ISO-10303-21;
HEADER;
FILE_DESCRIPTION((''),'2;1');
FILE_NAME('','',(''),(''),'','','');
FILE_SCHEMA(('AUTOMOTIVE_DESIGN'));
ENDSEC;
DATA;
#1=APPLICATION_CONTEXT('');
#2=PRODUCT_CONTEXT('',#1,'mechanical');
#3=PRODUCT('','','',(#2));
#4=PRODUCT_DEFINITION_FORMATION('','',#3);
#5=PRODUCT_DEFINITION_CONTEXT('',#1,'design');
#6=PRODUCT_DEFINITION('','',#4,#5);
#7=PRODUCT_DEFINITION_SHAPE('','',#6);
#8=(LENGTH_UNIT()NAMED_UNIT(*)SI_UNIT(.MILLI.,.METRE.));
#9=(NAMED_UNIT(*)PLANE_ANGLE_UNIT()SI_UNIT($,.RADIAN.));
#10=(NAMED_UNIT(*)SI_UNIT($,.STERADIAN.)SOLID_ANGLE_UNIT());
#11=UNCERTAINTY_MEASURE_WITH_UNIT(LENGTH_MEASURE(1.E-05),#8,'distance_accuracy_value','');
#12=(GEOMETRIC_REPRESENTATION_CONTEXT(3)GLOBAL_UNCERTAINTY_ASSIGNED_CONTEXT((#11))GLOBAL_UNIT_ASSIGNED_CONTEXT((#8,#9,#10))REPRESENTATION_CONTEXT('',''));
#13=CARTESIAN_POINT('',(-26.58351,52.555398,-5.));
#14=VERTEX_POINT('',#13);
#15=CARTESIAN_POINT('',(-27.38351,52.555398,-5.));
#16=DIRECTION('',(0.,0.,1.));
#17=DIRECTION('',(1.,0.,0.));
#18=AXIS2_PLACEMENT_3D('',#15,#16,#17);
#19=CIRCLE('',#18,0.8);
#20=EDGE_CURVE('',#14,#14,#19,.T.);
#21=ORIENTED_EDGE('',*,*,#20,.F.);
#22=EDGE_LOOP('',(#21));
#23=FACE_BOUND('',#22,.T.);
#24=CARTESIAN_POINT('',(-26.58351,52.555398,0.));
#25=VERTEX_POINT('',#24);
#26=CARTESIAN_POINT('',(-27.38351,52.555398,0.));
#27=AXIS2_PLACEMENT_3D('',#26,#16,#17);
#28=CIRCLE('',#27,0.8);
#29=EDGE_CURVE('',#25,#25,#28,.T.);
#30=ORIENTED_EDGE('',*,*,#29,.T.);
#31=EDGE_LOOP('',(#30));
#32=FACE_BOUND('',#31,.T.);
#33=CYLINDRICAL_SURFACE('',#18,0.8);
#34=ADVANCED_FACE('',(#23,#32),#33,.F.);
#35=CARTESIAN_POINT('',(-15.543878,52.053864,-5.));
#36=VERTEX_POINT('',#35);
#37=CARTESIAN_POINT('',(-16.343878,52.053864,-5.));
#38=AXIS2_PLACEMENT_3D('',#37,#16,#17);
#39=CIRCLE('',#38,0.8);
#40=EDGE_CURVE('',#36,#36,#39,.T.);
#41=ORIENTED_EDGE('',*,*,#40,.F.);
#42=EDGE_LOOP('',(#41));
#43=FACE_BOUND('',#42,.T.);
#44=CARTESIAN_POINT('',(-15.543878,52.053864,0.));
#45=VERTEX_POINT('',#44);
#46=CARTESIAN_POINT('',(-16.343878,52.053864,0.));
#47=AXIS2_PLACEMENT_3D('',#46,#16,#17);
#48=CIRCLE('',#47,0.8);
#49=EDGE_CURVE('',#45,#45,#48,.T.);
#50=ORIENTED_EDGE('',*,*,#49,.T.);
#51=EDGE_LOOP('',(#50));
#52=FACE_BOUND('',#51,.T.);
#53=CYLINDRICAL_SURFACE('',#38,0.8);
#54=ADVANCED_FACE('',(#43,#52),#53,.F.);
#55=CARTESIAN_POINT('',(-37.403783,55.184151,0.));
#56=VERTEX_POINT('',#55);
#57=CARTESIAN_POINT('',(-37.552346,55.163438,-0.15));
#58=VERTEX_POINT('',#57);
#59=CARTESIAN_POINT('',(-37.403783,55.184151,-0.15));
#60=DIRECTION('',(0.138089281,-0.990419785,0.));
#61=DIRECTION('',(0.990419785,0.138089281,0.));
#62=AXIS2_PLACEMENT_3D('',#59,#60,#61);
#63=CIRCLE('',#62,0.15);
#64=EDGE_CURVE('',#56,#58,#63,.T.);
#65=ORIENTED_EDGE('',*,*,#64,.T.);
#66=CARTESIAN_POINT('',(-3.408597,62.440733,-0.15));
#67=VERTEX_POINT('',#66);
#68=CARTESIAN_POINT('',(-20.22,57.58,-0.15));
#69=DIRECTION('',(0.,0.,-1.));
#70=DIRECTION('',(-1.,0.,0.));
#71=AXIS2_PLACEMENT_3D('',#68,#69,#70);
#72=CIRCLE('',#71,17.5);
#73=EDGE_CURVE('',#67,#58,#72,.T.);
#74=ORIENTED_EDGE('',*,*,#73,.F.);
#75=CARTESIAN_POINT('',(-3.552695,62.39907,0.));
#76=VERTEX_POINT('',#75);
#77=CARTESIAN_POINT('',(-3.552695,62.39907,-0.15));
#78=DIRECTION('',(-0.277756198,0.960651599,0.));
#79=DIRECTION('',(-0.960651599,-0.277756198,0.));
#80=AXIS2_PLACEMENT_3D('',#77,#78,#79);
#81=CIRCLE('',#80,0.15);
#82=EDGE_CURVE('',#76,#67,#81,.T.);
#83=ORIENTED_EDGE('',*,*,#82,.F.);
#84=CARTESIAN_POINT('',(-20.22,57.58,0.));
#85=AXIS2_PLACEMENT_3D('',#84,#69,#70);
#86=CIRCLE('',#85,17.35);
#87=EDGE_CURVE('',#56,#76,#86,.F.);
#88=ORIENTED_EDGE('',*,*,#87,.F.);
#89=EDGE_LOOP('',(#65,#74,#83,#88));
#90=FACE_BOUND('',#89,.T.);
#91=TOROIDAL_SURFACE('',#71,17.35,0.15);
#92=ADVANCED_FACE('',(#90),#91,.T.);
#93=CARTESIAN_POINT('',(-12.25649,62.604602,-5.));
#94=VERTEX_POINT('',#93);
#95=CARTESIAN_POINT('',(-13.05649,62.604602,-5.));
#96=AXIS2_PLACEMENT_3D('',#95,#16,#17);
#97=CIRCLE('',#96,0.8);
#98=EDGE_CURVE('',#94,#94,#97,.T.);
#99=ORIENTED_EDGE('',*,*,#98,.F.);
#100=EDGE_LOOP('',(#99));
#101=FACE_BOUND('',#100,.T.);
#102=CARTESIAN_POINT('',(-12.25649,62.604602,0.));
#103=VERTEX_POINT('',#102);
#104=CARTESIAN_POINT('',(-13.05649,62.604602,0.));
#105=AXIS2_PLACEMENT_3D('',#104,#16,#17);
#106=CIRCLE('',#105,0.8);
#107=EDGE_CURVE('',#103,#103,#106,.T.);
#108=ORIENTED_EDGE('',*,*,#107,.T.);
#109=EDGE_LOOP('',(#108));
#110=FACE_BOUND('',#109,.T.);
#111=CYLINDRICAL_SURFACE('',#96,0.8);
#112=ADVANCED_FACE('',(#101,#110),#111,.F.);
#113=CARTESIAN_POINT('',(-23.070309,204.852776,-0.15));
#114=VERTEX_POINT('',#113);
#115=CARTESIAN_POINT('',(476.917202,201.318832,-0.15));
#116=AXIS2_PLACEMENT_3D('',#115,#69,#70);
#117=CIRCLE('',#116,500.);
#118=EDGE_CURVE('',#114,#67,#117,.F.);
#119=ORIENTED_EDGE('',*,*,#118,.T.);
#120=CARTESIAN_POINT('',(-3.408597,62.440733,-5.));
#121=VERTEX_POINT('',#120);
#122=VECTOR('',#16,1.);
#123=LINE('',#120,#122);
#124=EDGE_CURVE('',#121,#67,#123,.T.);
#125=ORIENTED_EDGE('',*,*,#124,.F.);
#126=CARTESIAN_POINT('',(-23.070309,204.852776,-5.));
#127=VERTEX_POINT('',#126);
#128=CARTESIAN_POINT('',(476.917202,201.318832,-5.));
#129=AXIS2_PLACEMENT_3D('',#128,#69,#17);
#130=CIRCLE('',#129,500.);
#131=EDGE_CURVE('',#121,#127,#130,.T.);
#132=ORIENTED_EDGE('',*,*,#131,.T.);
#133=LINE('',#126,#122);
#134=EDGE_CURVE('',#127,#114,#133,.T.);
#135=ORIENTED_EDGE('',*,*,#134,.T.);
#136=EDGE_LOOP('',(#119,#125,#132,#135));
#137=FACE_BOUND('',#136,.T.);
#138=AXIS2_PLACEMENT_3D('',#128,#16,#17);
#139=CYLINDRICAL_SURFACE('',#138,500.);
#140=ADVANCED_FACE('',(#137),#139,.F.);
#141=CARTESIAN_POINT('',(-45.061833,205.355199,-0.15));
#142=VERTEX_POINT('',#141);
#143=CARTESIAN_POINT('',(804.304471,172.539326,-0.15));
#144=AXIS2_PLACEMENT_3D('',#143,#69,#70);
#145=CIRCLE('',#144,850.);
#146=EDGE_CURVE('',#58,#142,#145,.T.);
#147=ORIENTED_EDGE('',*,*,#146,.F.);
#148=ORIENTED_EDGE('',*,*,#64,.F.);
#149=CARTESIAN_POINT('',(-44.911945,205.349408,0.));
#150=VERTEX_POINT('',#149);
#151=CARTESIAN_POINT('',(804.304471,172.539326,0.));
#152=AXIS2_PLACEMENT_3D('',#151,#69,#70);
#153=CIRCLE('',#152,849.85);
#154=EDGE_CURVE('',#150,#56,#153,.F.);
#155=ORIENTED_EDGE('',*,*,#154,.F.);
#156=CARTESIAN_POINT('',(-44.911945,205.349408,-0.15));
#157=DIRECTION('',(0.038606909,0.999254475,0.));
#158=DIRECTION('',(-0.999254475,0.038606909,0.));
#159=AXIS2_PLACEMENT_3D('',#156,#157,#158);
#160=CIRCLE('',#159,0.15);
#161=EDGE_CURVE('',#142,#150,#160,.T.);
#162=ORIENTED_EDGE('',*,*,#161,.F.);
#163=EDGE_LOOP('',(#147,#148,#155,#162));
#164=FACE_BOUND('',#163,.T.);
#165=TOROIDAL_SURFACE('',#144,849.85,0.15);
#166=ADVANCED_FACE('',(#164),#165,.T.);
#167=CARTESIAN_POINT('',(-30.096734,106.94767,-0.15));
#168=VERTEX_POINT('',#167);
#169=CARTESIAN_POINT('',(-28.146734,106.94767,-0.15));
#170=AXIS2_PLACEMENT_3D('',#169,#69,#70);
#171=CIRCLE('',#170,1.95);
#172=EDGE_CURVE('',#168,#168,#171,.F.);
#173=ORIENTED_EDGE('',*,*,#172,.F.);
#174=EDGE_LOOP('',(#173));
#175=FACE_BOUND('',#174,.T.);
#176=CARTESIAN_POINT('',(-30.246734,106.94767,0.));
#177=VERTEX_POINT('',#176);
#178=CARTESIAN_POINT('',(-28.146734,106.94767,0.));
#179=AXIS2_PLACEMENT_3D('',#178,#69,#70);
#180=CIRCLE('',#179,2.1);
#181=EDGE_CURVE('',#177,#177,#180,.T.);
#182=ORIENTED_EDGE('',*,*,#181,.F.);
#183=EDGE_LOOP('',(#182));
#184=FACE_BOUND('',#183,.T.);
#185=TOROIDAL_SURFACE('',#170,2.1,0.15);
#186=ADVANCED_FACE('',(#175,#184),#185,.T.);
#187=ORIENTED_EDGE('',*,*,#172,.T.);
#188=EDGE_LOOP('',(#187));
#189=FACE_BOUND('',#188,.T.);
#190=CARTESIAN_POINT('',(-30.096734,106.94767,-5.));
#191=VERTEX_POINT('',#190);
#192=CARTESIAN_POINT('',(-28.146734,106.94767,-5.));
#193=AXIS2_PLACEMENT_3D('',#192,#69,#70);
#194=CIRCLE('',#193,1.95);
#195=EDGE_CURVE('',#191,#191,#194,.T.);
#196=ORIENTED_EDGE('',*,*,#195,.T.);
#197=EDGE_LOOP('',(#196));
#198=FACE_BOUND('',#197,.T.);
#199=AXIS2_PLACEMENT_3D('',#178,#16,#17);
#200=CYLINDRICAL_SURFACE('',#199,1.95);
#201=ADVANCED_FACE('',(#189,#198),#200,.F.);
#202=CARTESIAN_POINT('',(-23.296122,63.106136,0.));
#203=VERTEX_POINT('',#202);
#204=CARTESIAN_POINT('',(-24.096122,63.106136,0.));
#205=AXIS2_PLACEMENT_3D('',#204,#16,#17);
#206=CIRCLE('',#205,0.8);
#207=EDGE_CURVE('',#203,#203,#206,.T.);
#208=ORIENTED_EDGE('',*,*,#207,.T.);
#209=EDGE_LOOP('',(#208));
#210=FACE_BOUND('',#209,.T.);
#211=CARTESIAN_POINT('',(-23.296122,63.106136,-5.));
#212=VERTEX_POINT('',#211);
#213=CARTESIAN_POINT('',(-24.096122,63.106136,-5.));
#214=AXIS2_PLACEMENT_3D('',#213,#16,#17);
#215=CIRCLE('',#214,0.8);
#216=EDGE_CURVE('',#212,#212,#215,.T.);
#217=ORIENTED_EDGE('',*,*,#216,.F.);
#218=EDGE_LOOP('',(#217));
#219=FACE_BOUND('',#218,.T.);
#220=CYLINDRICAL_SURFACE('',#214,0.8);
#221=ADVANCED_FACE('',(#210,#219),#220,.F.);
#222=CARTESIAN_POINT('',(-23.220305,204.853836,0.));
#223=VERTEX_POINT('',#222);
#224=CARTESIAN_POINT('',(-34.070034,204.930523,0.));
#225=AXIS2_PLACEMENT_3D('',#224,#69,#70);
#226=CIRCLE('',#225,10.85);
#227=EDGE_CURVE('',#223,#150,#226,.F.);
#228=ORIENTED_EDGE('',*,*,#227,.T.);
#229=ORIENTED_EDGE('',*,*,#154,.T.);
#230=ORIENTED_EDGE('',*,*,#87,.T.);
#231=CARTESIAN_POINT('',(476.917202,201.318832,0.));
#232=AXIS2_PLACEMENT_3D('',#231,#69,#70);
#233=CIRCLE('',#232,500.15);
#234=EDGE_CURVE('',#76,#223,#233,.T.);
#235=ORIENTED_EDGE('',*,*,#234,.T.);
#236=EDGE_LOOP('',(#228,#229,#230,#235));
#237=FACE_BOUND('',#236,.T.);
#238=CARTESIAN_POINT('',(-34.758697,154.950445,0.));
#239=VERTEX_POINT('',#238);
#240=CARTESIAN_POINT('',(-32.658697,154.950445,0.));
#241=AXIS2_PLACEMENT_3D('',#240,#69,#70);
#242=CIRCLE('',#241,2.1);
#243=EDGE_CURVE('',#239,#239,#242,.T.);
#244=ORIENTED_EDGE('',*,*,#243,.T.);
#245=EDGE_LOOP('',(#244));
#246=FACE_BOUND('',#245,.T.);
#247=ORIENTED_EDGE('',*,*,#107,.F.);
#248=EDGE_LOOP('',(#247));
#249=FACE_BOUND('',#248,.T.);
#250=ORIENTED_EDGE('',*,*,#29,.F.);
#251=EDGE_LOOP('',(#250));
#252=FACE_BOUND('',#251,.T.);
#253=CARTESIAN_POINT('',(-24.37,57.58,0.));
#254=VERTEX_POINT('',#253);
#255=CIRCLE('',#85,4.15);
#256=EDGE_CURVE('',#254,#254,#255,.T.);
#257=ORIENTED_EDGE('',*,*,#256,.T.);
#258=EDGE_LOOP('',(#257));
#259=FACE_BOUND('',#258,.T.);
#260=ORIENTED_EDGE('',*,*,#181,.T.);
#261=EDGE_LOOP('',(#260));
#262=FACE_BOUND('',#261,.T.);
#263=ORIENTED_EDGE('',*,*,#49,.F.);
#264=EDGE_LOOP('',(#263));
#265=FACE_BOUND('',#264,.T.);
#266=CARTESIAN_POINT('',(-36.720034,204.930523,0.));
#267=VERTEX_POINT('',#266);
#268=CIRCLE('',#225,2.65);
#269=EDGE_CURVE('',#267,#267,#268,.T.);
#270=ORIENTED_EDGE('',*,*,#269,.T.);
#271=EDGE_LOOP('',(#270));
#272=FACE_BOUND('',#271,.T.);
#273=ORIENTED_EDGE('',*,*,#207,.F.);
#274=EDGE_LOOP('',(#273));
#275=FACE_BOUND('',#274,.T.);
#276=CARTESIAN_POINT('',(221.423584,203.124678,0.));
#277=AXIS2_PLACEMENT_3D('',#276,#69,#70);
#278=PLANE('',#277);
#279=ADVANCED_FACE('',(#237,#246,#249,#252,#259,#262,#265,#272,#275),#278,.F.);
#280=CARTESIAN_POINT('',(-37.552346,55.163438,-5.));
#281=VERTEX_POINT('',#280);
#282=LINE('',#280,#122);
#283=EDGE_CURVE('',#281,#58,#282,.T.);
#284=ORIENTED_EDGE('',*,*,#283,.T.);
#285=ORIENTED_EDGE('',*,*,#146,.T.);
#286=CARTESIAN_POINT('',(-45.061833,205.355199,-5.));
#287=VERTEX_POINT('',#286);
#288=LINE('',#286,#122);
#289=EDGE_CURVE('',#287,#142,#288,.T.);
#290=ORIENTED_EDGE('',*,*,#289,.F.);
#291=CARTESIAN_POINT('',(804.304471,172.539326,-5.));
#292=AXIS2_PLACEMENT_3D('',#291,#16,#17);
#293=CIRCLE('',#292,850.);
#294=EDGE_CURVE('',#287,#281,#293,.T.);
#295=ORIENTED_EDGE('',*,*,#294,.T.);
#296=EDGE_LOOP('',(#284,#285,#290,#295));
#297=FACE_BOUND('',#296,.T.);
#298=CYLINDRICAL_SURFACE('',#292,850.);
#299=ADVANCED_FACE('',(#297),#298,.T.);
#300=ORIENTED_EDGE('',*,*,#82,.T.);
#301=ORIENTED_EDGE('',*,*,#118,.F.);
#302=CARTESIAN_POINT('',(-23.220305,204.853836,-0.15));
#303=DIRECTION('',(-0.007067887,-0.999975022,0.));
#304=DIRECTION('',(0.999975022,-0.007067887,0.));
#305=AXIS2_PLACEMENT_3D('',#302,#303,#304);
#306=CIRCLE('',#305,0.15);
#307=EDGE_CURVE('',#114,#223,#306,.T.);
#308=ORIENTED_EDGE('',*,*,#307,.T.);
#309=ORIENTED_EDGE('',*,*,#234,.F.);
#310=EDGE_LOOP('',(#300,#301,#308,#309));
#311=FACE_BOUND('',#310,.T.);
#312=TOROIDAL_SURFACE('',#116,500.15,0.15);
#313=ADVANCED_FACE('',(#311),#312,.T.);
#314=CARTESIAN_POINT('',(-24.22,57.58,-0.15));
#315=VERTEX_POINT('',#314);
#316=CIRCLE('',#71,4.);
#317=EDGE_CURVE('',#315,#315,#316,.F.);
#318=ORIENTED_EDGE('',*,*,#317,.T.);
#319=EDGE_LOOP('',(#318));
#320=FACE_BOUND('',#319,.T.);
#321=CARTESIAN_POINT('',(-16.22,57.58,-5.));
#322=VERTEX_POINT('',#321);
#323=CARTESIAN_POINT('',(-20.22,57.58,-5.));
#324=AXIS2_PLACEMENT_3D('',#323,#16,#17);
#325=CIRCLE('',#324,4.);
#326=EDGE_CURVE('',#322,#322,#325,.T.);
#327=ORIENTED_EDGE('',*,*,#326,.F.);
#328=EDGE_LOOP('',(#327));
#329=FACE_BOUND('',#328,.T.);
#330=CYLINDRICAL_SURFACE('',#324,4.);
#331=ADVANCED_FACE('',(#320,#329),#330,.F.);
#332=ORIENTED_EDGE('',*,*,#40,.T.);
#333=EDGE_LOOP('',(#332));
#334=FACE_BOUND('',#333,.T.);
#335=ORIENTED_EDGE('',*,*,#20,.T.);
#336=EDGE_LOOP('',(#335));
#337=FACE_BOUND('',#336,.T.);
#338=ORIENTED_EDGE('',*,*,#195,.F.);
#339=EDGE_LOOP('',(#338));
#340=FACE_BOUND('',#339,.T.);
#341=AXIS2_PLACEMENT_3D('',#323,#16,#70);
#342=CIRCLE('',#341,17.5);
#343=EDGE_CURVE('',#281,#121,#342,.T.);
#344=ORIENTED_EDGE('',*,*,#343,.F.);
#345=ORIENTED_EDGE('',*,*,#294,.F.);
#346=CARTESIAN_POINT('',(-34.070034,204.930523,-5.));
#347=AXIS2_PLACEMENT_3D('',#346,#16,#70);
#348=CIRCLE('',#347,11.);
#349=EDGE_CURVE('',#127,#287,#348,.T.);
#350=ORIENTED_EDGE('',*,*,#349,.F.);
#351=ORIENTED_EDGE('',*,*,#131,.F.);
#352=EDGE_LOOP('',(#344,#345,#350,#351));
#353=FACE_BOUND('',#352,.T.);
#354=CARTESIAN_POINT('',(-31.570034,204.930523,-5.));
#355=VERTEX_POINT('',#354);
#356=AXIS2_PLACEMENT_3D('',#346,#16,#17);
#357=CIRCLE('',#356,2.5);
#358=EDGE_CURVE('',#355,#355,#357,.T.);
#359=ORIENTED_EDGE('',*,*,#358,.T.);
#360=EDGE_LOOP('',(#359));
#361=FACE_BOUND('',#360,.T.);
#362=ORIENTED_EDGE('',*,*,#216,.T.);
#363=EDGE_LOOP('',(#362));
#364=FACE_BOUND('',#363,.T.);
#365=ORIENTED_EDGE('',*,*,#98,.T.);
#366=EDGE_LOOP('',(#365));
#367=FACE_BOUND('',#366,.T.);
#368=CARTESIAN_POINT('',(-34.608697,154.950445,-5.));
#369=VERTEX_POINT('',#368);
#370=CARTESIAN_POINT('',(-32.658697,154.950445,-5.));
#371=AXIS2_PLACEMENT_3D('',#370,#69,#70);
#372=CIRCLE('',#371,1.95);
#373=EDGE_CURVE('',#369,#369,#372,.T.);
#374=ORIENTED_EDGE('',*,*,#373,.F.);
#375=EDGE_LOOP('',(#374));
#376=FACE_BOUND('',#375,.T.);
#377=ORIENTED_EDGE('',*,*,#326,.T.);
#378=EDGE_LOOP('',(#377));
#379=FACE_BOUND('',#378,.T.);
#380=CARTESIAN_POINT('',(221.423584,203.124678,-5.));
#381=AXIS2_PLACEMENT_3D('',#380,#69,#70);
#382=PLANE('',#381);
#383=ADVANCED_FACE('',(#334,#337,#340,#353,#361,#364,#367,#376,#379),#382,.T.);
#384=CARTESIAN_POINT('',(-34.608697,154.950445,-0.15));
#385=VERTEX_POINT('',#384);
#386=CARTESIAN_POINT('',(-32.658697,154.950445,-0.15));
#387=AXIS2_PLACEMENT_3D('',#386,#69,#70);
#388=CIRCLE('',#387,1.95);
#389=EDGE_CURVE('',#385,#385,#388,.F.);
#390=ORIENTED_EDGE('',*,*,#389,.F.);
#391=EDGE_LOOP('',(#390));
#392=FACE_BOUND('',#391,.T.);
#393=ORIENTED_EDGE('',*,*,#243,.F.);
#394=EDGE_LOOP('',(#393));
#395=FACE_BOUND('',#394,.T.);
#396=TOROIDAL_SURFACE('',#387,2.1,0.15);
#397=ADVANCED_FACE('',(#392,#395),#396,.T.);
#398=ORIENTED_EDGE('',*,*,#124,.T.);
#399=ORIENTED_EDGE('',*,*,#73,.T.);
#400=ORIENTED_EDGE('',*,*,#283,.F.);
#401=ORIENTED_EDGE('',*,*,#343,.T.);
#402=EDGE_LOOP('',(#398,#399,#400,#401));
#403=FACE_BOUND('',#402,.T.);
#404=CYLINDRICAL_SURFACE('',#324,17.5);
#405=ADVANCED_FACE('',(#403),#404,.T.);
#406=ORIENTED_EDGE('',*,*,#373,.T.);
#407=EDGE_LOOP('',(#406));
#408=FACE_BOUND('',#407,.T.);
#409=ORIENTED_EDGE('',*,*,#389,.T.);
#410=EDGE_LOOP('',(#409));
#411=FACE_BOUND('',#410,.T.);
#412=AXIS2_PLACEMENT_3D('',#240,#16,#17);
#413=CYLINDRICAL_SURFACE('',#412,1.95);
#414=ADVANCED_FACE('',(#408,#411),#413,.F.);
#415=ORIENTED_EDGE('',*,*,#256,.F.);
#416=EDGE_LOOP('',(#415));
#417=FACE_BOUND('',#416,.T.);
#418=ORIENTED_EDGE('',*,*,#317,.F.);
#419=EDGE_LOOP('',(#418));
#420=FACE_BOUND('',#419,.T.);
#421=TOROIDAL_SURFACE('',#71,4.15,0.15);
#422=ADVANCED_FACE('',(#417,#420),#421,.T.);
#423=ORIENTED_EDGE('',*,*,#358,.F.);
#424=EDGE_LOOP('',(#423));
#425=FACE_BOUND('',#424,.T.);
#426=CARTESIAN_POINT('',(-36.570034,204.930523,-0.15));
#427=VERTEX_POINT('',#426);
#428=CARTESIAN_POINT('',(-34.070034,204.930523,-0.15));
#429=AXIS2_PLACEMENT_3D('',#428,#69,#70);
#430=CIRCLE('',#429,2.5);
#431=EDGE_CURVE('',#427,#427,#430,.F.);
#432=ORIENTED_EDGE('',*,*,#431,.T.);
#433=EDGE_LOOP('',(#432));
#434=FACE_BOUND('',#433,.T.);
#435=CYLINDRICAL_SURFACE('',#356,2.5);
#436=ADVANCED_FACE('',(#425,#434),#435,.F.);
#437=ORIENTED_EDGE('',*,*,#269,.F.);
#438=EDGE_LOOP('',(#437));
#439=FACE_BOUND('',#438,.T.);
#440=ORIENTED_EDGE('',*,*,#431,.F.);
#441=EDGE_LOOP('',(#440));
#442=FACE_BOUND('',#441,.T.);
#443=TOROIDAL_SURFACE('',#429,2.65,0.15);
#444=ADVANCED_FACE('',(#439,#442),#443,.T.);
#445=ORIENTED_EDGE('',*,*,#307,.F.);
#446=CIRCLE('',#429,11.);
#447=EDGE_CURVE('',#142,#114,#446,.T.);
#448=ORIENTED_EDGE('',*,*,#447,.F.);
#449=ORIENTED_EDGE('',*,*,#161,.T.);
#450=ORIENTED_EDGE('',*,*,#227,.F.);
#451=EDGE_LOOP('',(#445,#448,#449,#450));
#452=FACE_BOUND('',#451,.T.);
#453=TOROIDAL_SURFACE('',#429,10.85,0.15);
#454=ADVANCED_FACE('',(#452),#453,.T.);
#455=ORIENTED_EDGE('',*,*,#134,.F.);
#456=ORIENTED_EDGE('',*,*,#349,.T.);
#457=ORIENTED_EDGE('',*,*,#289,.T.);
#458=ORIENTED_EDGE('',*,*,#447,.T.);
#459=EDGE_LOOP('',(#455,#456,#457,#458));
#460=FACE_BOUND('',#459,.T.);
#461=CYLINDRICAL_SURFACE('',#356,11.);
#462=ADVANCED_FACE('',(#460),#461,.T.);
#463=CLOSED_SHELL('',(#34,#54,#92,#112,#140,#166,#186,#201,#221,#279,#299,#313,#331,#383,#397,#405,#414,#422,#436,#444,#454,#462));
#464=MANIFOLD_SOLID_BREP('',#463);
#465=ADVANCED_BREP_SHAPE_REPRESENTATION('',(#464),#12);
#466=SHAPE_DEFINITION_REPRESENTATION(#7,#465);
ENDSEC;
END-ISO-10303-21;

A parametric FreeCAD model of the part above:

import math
import FreeCAD as App
import Part
import Sketcher

V = App.Vector


def edges_at(feature, points):
    """Names of the edges that pass closest to the given points."""
    edges = feature.Shape.Edges
    near = lambda p: min(range(len(edges)), key=lambda i: edges[i].distToShape(Part.Vertex(*p))[0])
    return sorted({f"Edge{near(p) + 1}" for p in points})

doc = App.newDocument("Part")
body = doc.addObject("PartDesign::Body", "Body")

# Sketch on XY plane
sketch1 = body.newObject("Sketcher::SketchObject", "Sketch")
sketch1.AttachmentSupport = (doc.getObject("XY_Plane"), [""])
sketch1.MapMode = "FlatFace"
sketch1.addGeometry([
    Part.ArcOfCircle(Part.Circle(V(476.917202, 201.318832, 0), V(0, 0, 1), 500), math.radians(179.595037), math.radians(196.126333)),  # 0
    Part.ArcOfCircle(Part.Circle(V(-34.070034, 204.930523, 0), V(0, 0, 1), 11), math.radians(-0.404963), math.radians(177.787437)),  # 1
    Part.ArcOfCircle(Part.Circle(V(804.304471, 172.539326, 0), V(0, 0, 1), 850), math.radians(177.787437), math.radians(187.937296)),  # 2
    Part.ArcOfCircle(Part.Circle(V(-20.22, 57.58, 0), V(0, 0, 1), 17.5), math.radians(-172.062704), math.radians(16.126333)),  # 3
    Part.Circle(V(-20.22, 57.58, 0), V(0, 0, 1), 4),  # 4
    Part.Circle(V(-34.070034, 204.930523, 0), V(0, 0, 1), 2.5),  # 5
], False)
sketch1.addConstraint([
    Sketcher.Constraint("Tangent", 0, 1, 1, 1),
    Sketcher.Constraint("Tangent", 1, 2, 2, 1),
    Sketcher.Constraint("Tangent", 2, 2, 3, 1),
    Sketcher.Constraint("Tangent", 3, 2, 0, 2),
    Sketcher.Constraint("Coincident", 4, 3, 3, 3),
    Sketcher.Constraint("Coincident", 5, 3, 1, 3),
    Sketcher.Constraint("Diameter", 4, 8.0),
    Sketcher.Constraint("Diameter", 5, 5.0),
    Sketcher.Constraint("Radius", 0, 500.0),
    Sketcher.Constraint("Radius", 1, 11.0),
    Sketcher.Constraint("Radius", 2, 850.0),
    Sketcher.Constraint("Radius", 3, 17.5),
    Sketcher.Constraint("DistanceX", 3, 3, -1, 1, 20.22),
    Sketcher.Constraint("DistanceY", -1, 1, 3, 3, 57.58),
    Sketcher.Constraint("DistanceY", -1, 1, 1, 2, 205.355199),
    Sketcher.Constraint("DistanceX", -1, 1, 2, 3, 804.304471),
])
pad1 = body.newObject("PartDesign::Pad", "Pad")
pad1.Profile = sketch1
pad1.Length = 5
pad1.Reversed = True

# Sketch on XY plane
sketch2 = body.newObject("Sketcher::SketchObject", "Sketch001")
sketch2.AttachmentSupport = (doc.getObject("XY_Plane"), [""])
sketch2.MapMode = "FlatFace"
sketch2.addGeometry([
    Part.Circle(V(-32.658697, 154.950445, 0), V(0, 0, 1), 1.95),
    Part.Circle(V(-28.146734, 106.94767, 0), V(0, 0, 1), 1.95),
], False)
sketch2.addConstraint([
    Sketcher.Constraint("Equal", 0, 1),
    Sketcher.Constraint("Diameter", 0, 3.9),
    Sketcher.Constraint("DistanceY", -1, 1, 1, 3, 106.94767),
    Sketcher.Constraint("DistanceX", 0, 3, -1, 1, 32.658697),
    Sketcher.Constraint("DistanceY", -1, 1, 0, 3, 154.950445),
    Sketcher.Constraint("DistanceX", 1, 3, -1, 1, 28.146734),
])
doc.recompute()
hole = body.newObject("PartDesign::Hole", "Hole")
hole.Profile = sketch2
hole.ThreadType = "None"
hole.Diameter = 3.9
hole.DepthType = "Dimension"
hole.Depth = 10
hole.DrillPoint = "Angled"
hole.DrillPointAngle = 118
doc.recompute()

fillet = body.newObject("PartDesign::Fillet", "Fillet")
fillet.Base = (hole, edges_at(hole, [
    (-36.57, 204.931, 0),
    (-24.22, 57.58, 0),
    (-26.197, 106.948, 0),
    (-30.709, 154.95, 0),
    (-18.385, 132.936, 0),
    (-16.572, 40.464, 0),
    (-44.635, 130.093, 0),
    (-33.819, 215.928, 0),
]))
fillet.Radius = 0.15

# Sketch on XY plane
sketch3 = body.newObject("Sketcher::SketchObject", "Sketch002")
sketch3.AttachmentSupport = (doc.getObject("XY_Plane"), [""])
sketch3.MapMode = "FlatFace"
sketch3.addGeometry([
    Part.Circle(V(-27.38351, 52.555398, 0), V(0, 0, 1), 0.8),
    Part.Circle(V(-16.343878, 52.053864, 0), V(0, 0, 1), 0.8),
    Part.Circle(V(-13.05649, 62.604602, 0), V(0, 0, 1), 0.8),
    Part.Circle(V(-24.096122, 63.106136, 0), V(0, 0, 1), 0.8),
], False)
sketch3.addConstraint([
    Sketcher.Constraint("Equal", 0, 1),
    Sketcher.Constraint("Equal", 1, 2),
    Sketcher.Constraint("Equal", 2, 3),
    Sketcher.Constraint("Diameter", 0, 1.6),
    Sketcher.Constraint("DistanceY", -1, 1, 0, 3, 52.555398),
    Sketcher.Constraint("DistanceY", -1, 1, 2, 3, 62.604602),
    Sketcher.Constraint("DistanceX", 0, 3, -1, 1, 27.38351),
    Sketcher.Constraint("DistanceX", 1, 3, -1, 1, 16.343878),
    Sketcher.Constraint("DistanceX", 2, 3, -1, 1, 13.05649),
    Sketcher.Constraint("DistanceX", 3, 3, -1, 1, 24.096122),
    Sketcher.Constraint("DistanceY", 1, 3, 2, 3, 10.550738),
    Sketcher.Constraint("DistanceY", 0, 3, 3, 3, 10.550738),
])
pocket1 = body.newObject("PartDesign::Pocket", "Pocket")
pocket1.Profile = sketch3
pocket1.Type = "ThroughAll"

doc.recompute()
